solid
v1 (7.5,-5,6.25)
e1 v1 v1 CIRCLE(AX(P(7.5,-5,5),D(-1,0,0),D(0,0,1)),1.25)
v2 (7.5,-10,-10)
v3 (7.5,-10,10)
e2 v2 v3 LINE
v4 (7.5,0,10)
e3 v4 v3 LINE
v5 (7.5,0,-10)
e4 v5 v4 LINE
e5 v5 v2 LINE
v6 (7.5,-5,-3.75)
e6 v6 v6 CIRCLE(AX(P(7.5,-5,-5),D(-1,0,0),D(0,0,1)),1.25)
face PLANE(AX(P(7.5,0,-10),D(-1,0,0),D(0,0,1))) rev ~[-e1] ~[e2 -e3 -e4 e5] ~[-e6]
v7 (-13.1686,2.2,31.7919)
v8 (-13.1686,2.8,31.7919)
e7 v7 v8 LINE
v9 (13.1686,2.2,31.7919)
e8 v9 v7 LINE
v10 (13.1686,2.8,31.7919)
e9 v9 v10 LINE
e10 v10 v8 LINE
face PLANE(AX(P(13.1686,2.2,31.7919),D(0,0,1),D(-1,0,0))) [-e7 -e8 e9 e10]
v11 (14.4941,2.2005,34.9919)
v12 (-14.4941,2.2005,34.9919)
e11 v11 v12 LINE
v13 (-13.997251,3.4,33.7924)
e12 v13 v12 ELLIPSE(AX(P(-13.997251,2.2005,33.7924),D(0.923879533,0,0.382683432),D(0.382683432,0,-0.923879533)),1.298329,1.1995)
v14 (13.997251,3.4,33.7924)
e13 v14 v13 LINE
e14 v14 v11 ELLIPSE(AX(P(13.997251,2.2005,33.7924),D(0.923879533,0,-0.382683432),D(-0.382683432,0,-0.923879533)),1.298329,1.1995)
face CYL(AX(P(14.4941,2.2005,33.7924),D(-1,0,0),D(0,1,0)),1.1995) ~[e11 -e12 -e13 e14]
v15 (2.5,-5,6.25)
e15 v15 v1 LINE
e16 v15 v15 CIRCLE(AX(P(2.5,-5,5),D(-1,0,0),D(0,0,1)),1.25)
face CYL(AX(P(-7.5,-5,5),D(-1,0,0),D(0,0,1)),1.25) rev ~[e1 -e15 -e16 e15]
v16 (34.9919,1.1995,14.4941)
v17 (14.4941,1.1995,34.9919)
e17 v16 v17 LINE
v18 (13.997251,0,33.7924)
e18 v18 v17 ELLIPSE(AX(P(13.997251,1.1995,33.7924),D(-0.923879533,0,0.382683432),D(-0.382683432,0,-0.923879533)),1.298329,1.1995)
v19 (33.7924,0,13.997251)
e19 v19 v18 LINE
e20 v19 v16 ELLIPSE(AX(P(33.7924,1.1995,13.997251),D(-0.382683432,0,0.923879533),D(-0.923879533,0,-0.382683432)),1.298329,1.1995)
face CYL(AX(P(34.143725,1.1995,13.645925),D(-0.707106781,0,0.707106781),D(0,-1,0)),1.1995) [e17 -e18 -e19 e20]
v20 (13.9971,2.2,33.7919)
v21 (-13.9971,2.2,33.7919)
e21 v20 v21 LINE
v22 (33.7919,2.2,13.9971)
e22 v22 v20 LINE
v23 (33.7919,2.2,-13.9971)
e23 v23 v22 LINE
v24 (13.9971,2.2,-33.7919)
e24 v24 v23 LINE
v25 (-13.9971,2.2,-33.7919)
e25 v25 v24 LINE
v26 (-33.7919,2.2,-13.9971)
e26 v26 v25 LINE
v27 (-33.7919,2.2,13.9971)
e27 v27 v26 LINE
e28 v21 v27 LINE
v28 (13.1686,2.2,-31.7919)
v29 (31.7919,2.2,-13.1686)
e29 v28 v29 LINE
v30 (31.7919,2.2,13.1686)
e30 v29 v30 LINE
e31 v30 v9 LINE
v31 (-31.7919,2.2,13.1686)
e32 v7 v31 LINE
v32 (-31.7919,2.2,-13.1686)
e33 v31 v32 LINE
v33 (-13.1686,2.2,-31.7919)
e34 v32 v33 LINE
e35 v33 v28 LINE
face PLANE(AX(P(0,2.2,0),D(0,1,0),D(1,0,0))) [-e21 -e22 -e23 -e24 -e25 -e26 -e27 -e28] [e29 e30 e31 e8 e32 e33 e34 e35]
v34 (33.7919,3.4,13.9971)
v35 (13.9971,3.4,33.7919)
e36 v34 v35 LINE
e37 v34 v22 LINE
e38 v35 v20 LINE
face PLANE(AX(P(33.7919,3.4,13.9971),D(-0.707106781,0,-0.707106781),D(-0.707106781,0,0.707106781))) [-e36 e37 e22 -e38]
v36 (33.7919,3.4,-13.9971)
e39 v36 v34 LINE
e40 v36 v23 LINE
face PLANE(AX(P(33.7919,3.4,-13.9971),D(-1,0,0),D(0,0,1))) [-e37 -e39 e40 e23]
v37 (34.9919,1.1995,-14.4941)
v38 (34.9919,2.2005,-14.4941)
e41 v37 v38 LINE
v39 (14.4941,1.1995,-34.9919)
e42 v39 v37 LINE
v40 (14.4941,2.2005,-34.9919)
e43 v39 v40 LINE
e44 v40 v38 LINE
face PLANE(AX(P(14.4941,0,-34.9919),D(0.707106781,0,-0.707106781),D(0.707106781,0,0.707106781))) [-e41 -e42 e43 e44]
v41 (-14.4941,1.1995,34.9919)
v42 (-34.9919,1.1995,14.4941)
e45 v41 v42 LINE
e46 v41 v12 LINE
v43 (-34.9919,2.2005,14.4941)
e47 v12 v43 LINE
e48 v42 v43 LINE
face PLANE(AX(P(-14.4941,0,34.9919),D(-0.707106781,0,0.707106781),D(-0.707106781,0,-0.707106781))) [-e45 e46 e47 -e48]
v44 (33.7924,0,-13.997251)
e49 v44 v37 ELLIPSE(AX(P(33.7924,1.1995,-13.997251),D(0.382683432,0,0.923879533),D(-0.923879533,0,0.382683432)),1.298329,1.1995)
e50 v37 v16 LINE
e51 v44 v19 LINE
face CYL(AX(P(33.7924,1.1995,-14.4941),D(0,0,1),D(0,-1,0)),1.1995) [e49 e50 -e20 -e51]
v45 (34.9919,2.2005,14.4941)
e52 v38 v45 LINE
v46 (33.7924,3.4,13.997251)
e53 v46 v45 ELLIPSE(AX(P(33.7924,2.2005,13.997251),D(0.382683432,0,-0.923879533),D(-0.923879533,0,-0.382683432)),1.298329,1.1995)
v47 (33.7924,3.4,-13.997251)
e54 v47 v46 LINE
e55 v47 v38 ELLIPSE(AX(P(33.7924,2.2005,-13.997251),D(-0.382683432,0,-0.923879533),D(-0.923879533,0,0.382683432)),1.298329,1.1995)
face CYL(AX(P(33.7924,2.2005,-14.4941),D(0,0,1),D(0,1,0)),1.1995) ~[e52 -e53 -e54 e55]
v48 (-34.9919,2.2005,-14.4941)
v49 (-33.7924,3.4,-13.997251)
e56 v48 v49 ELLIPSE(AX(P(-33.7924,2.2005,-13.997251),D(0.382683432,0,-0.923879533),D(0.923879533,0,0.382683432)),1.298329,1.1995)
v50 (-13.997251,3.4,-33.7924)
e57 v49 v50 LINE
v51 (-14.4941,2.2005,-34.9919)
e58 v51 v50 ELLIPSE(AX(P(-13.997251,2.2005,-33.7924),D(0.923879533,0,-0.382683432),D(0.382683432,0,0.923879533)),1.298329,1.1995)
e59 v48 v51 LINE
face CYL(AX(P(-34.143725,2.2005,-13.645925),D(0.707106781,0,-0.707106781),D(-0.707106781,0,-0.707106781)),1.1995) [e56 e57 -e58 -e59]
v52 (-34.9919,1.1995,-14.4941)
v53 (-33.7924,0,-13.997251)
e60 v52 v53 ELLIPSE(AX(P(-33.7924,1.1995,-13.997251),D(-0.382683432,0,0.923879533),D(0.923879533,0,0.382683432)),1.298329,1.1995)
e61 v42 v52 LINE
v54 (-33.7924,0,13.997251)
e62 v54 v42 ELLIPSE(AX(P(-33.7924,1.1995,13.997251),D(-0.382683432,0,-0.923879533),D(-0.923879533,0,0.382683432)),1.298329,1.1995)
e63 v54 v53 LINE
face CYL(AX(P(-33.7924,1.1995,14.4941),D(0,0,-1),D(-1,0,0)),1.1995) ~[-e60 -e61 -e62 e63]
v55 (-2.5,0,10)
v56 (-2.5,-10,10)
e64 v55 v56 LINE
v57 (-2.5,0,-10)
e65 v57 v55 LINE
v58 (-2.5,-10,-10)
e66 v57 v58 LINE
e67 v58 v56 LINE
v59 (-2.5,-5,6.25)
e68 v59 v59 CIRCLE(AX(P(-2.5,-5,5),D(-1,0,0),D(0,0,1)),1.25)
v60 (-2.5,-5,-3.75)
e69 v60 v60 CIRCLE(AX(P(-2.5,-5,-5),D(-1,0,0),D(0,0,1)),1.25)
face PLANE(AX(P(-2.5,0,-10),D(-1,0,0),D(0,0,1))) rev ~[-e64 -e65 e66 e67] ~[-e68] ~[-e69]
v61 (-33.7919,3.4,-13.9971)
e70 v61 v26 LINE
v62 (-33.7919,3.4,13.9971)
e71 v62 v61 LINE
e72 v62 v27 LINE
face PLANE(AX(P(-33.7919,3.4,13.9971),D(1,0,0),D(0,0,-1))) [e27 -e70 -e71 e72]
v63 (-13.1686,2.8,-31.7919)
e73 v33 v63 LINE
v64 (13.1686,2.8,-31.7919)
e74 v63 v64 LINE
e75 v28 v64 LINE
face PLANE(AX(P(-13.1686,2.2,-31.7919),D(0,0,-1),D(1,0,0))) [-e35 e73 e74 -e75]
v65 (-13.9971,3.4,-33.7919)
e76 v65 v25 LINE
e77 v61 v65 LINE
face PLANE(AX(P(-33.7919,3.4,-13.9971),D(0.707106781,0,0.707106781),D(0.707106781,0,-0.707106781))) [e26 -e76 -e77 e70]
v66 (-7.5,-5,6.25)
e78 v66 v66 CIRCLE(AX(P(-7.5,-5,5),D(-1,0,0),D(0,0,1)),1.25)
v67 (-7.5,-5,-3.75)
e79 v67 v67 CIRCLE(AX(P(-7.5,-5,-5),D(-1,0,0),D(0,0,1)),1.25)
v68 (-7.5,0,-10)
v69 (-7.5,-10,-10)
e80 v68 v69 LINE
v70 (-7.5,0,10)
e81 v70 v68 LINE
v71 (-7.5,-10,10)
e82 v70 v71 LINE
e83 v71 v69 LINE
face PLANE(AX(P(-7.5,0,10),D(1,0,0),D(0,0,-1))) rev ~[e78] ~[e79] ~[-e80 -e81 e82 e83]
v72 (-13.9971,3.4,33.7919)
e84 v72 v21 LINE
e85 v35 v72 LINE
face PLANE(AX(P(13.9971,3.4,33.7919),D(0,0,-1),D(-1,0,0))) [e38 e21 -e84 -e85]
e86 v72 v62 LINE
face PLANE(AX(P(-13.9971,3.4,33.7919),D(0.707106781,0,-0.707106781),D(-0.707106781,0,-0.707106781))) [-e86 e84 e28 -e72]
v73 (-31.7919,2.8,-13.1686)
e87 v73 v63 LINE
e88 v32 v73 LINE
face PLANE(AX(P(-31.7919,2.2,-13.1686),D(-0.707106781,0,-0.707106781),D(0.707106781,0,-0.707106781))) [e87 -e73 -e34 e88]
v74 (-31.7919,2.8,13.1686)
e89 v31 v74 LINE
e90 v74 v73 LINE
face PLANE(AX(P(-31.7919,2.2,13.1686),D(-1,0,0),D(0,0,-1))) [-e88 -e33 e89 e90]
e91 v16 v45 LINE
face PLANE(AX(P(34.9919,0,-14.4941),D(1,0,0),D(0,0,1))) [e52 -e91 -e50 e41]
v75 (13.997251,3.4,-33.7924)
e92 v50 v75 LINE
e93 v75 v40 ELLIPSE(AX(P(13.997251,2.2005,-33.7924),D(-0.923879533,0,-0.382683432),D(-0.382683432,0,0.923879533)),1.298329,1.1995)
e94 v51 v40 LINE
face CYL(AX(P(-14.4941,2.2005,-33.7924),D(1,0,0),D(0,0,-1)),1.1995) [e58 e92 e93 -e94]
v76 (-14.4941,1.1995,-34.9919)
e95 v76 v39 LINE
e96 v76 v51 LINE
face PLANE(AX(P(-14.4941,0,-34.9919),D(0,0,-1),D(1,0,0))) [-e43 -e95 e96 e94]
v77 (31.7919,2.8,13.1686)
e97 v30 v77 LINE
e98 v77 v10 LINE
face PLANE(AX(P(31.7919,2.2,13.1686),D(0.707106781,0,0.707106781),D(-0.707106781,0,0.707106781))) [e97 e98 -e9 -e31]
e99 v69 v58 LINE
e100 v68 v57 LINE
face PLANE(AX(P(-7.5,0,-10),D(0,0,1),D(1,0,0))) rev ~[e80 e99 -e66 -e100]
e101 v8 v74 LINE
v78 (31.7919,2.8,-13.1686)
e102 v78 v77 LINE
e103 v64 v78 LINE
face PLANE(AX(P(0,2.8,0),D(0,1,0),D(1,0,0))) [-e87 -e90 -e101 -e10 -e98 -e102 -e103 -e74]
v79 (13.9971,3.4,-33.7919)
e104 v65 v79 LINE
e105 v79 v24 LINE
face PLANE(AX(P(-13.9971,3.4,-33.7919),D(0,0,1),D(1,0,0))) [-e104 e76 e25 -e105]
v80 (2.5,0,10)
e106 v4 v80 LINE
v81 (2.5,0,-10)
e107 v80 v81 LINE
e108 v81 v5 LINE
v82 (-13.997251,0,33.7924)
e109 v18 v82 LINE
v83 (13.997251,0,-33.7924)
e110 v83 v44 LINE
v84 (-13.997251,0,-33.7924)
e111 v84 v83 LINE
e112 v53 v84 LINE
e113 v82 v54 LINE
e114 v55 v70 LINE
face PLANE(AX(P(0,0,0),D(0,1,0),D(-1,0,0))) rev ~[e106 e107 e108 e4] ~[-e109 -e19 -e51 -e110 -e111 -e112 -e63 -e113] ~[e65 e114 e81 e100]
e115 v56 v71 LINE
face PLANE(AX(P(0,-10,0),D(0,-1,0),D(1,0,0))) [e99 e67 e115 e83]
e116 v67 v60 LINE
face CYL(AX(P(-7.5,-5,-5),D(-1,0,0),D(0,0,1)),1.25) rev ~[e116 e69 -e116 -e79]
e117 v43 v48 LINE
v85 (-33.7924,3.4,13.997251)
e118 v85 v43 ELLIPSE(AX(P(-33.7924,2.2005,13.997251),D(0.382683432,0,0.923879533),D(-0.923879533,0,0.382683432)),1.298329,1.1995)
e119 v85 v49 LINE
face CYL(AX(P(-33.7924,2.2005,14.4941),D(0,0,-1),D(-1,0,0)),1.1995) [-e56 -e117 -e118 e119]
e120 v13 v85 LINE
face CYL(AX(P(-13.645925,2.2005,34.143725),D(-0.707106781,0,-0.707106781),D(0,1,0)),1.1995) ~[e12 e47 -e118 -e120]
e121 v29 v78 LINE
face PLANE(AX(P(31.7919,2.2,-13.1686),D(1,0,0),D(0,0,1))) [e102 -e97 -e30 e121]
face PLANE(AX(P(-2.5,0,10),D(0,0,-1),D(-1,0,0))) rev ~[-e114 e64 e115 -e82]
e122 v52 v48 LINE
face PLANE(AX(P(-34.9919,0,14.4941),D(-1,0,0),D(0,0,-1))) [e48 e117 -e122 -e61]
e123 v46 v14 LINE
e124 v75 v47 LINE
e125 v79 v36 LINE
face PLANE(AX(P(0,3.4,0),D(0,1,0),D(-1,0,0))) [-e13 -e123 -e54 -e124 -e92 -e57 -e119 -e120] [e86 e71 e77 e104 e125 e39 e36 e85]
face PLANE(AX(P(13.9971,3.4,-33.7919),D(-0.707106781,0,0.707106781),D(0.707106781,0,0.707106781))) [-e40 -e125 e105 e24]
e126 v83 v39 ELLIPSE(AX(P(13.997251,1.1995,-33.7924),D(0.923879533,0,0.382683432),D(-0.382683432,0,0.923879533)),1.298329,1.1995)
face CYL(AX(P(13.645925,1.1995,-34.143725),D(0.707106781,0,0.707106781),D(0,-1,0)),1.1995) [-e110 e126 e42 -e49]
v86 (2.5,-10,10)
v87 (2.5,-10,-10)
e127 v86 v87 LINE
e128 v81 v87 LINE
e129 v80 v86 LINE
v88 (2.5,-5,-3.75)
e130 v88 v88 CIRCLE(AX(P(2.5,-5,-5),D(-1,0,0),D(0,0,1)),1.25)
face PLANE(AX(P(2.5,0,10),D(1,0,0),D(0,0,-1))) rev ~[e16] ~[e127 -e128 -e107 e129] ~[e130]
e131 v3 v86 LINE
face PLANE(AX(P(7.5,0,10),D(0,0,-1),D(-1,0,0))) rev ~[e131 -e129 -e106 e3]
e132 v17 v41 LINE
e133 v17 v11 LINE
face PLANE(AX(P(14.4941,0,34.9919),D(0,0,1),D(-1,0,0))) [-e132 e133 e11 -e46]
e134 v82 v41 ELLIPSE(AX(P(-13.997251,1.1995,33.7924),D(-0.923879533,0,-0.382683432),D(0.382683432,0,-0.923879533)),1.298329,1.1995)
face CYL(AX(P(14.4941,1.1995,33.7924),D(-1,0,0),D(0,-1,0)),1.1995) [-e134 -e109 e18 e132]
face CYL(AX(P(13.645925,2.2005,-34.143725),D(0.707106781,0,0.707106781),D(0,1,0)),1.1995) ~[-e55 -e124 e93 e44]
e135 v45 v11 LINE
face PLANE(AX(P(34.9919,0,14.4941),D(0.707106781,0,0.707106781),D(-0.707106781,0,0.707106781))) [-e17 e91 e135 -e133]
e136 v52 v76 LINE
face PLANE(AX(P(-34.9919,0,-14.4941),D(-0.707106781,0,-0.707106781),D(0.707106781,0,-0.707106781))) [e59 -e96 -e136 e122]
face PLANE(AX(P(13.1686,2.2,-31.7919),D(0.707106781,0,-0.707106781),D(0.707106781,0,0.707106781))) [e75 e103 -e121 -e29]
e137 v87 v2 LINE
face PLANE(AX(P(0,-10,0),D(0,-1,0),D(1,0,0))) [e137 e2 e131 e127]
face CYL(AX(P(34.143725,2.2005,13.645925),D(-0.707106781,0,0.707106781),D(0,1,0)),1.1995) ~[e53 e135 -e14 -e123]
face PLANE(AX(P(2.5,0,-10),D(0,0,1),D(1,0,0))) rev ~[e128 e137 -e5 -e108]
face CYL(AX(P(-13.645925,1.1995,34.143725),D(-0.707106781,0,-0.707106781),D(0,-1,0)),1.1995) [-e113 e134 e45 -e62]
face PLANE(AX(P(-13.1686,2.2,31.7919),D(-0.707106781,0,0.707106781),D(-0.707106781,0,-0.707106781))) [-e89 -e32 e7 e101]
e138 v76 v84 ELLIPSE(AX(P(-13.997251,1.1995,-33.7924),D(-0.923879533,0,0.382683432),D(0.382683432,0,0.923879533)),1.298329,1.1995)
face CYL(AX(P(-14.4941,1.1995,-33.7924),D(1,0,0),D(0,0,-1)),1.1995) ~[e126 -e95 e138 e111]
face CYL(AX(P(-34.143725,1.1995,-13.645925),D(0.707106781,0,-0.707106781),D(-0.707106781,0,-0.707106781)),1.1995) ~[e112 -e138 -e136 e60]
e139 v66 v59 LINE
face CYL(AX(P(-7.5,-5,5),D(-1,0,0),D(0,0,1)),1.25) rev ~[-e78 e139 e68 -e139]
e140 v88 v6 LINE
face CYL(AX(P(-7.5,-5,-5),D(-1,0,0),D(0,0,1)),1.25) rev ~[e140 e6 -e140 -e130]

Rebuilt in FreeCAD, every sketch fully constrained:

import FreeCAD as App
import Part
import Sketcher
from FreeCAD import Vector


def edges_at(feature, points):
    """Names of the edges that pass closest to the given points."""
    edges = feature.Shape.Edges
    near = lambda p: min(range(len(edges)), key=lambda i: edges[i].distToShape(Part.Vertex(*p))[0])
    return sorted({f"Edge{near(p) + 1}" for p in points})

doc = App.newDocument("Part")
body = doc.addObject("PartDesign::Body", "Body")

# Sketch on XZ plane
sketch1 = body.newObject("Sketcher::SketchObject", "Sketch")
sketch1.AttachmentSupport = (doc.getObject("XZ_Plane"), [""])
sketch1.MapMode = "FlatFace"
sketch1.addGeometry([
    Part.LineSegment(Vector(-14, -35, 0), Vector(-35, -14, 0)),  # 0
    Part.LineSegment(Vector(-35, -14, 0), Vector(-35, 14, 0)),  # 1
    Part.LineSegment(Vector(-35, 14, 0), Vector(-14, 35, 0)),  # 2
    Part.LineSegment(Vector(-14, 35, 0), Vector(14, 35, 0)),  # 3
    Part.LineSegment(Vector(14, 35, 0), Vector(35, 14, 0)),  # 4
    Part.LineSegment(Vector(35, 14, 0), Vector(35, -14, 0)),  # 5
    Part.LineSegment(Vector(35, -14, 0), Vector(14, -35, 0)),  # 6
    Part.LineSegment(Vector(14, -35, 0), Vector(-14, -35, 0)),  # 7
], False)
sketch1.addConstraint([
    Sketcher.Constraint("Coincident", 0, 2, 1, 1),
    Sketcher.Constraint("Coincident", 1, 2, 2, 1),
    Sketcher.Constraint("Coincident", 2, 2, 3, 1),
    Sketcher.Constraint("Coincident", 3, 2, 4, 1),
    Sketcher.Constraint("Coincident", 4, 2, 5, 1),
    Sketcher.Constraint("Coincident", 5, 2, 6, 1),
    Sketcher.Constraint("Coincident", 6, 2, 7, 1),
    Sketcher.Constraint("Coincident", 7, 2, 0, 1),
    Sketcher.Constraint("Vertical", 1),
    Sketcher.Constraint("Horizontal", 3),
    Sketcher.Constraint("Vertical", 5),
    Sketcher.Constraint("Horizontal", 7),
    Sketcher.Constraint("Symmetric", 0, 2, 4, 2, -1, 1),
    Sketcher.Constraint("Symmetric", 2, 2, 6, 2, -1, 1),
    Sketcher.Constraint("Perpendicular", 0, 2),
    Sketcher.Constraint("Perpendicular", 2, 4),
    Sketcher.Constraint("Perpendicular", 4, 6),
    Sketcher.Constraint("Horizontal", 1, 2, 4, 2),
    Sketcher.Constraint("Vertical", 3, 2, 6, 2),
    Sketcher.Constraint("Equal", 7, 1),
    Sketcher.Constraint("DistanceX", 3, 1, 3, 2, 28.9882),
    Sketcher.Constraint("DistanceX", 0, 2, -1, 1, 34.992),
])
pad1 = body.newObject("PartDesign::Pad", "Pad")
pad1.Profile = sketch1
pad1.Length = 3.4
pad1.Reversed = True

# Sketch on XZ plane
sketch2 = body.newObject("Sketcher::SketchObject", "Sketch001")
sketch2.AttachmentSupport = (doc.getObject("XZ_Plane"), [""])
sketch2.MapMode = "FlatFace"
sketch2.AttachmentOffset = App.Placement(Vector(0, 0, -3.4), App.Rotation())
sketch2.addGeometry([
    Part.LineSegment(Vector(14, -34, 0), Vector(-14, -34, 0)),  # 0
    Part.LineSegment(Vector(-14, -34, 0), Vector(-34, -14, 0)),  # 1
    Part.LineSegment(Vector(-34, -14, 0), Vector(-34, 14, 0)),  # 2
    Part.LineSegment(Vector(-34, 14, 0), Vector(-14, 34, 0)),  # 3
    Part.LineSegment(Vector(-14, 34, 0), Vector(14, 34, 0)),  # 4
    Part.LineSegment(Vector(14, 34, 0), Vector(34, 14, 0)),  # 5
    Part.LineSegment(Vector(34, 14, 0), Vector(34, -14, 0)),  # 6
    Part.LineSegment(Vector(34, -14, 0), Vector(14, -34, 0)),  # 7
], False)
sketch2.addConstraint([
    Sketcher.Constraint("Coincident", 0, 2, 1, 1),
    Sketcher.Constraint("Coincident", 1, 2, 2, 1),
    Sketcher.Constraint("Coincident", 2, 2, 3, 1),
    Sketcher.Constraint("Coincident", 3, 2, 4, 1),
    Sketcher.Constraint("Coincident", 4, 2, 5, 1),
    Sketcher.Constraint("Coincident", 5, 2, 6, 1),
    Sketcher.Constraint("Coincident", 6, 2, 7, 1),
    Sketcher.Constraint("Coincident", 7, 2, 0, 1),
    Sketcher.Constraint("Horizontal", 0),
    Sketcher.Constraint("Vertical", 2),
    Sketcher.Constraint("Horizontal", 4),
    Sketcher.Constraint("Vertical", 6),
    Sketcher.Constraint("Symmetric", 0, 2, 4, 2, -1, 1),
    Sketcher.Constraint("Symmetric", 1, 2, 5, 2, -1, 1),
    Sketcher.Constraint("Perpendicular", 1, 3),
    Sketcher.Constraint("Perpendicular", 5, 7),
    Sketcher.Constraint("Horizontal", 2, 2, 5, 2),
    Sketcher.Constraint("Horizontal", 1, 2, 6, 2),
    Sketcher.Constraint("Vertical", 0, 2, 3, 2),
    Sketcher.Constraint("Equal", 4, 2),
    Sketcher.Constraint("Distance", 1, 27.994),
    Sketcher.Constraint("DistanceX", 0, 2, 0, 1, 27.9942),
])
pocket1 = body.newObject("PartDesign::Pocket", "Pocket")
pocket1.Profile = sketch2
pocket1.Length = 1.2
pocket1.Reversed = True

# Sketch on XZ plane
sketch3 = body.newObject("Sketcher::SketchObject", "Sketch002")
sketch3.AttachmentSupport = (doc.getObject("XZ_Plane"), [""])
sketch3.MapMode = "FlatFace"
sketch3.addGeometry([
    Part.LineSegment(Vector(8, -10, 0), Vector(8, 10, 0)),  # 0
    Part.LineSegment(Vector(8, 10, 0), Vector(2, 10, 0)),  # 1
    Part.LineSegment(Vector(2, 10, 0), Vector(2, -10, 0)),  # 2
    Part.LineSegment(Vector(2, -10, 0), Vector(8, -10, 0)),  # 3
    Part.LineSegment(Vector(-2, -10, 0), Vector(-2, 10, 0)),  # 4
    Part.LineSegment(Vector(-2, 10, 0), Vector(-8, 10, 0)),  # 5
    Part.LineSegment(Vector(-8, 10, 0), Vector(-8, -10, 0)),  # 6
    Part.LineSegment(Vector(-8, -10, 0), Vector(-2, -10, 0)),  # 7
], False)
sketch3.addConstraint([
    Sketcher.Constraint("Coincident", 0, 2, 1, 1),
    Sketcher.Constraint("Coincident", 1, 2, 2, 1),
    Sketcher.Constraint("Coincident", 2, 2, 3, 1),
    Sketcher.Constraint("Coincident", 3, 2, 0, 1),
    Sketcher.Constraint("Coincident", 4, 2, 5, 1),
    Sketcher.Constraint("Coincident", 5, 2, 6, 1),
    Sketcher.Constraint("Coincident", 6, 2, 7, 1),
    Sketcher.Constraint("Coincident", 7, 2, 4, 1),
    Sketcher.Constraint("Vertical", 0),
    Sketcher.Constraint("Horizontal", 1),
    Sketcher.Constraint("Vertical", 2),
    Sketcher.Constraint("Horizontal", 3),
    Sketcher.Constraint("Vertical", 4),
    Sketcher.Constraint("Horizontal", 5),
    Sketcher.Constraint("Vertical", 6),
    Sketcher.Constraint("Horizontal", 7),
    Sketcher.Constraint("Symmetric", 2, 2, 4, 2, -1, 1),
    Sketcher.Constraint("Symmetric", 0, 2, 6, 2, -1, 1),
    Sketcher.Constraint("Horizontal", 1, 2, 4, 2),
    Sketcher.Constraint("DistanceX", 1, 2, 1, 1, 5.0),
    Sketcher.Constraint("DistanceY", 0, 1, 0, 2, 20.0),
    Sketcher.Constraint("DistanceX", 4, 2, 1, 2, 5.0),
])
pad2 = body.newObject("PartDesign::Pad", "Pad001")
pad2.Profile = sketch3
pad2.Length = 10

# Sketch on YZ plane
sketch4 = body.newObject("Sketcher::SketchObject", "Sketch003")
sketch4.AttachmentSupport = (doc.getObject("YZ_Plane"), [""])
sketch4.MapMode = "FlatFace"
sketch4.AttachmentOffset = App.Placement(Vector(0, 0, -7.5), App.Rotation())
sketch4.addGeometry([
    Part.Circle(Vector(-5, 5, 0), Vector(0, 0, 1), 1.2),
    Part.Circle(Vector(-5, -5, 0), Vector(0, 0, 1), 1.2),
], False)
sketch4.addConstraint([
    Sketcher.Constraint("Equal", 0, 1),
    Sketcher.Constraint("Symmetric", 0, 3, 1, 3, -1),
    Sketcher.Constraint("Diameter", 0, 2.5),
    Sketcher.Constraint("DistanceX", 0, 3, -1, 1, 5.0),
    Sketcher.Constraint("DistanceY", -1, 1, 0, 3, 5.0),
])
pocket2 = body.newObject("PartDesign::Pocket", "Pocket001")
pocket2.Profile = sketch4
pocket2.Length = 20
pocket2.Reversed = True

# Sketch on XZ plane
sketch5 = body.newObject("Sketcher::SketchObject", "Sketch004")
sketch5.AttachmentSupport = (doc.getObject("XZ_Plane"), [""])
sketch5.MapMode = "FlatFace"
sketch5.AttachmentOffset = App.Placement(Vector(0, 0, -2.2), App.Rotation())
sketch5.addGeometry([
    Part.LineSegment(Vector(13, -32, 0), Vector(-13, -32, 0)),  # 0
    Part.LineSegment(Vector(-13, -32, 0), Vector(-32, -13, 0)),  # 1
    Part.LineSegment(Vector(-32, -13, 0), Vector(-32, 13, 0)),  # 2
    Part.LineSegment(Vector(-32, 13, 0), Vector(-13, 32, 0)),  # 3
    Part.LineSegment(Vector(-13, 32, 0), Vector(13, 32, 0)),  # 4
    Part.LineSegment(Vector(13, 32, 0), Vector(32, 13, 0)),  # 5
    Part.LineSegment(Vector(32, 13, 0), Vector(32, -13, 0)),  # 6
    Part.LineSegment(Vector(32, -13, 0), Vector(13, -32, 0)),  # 7
], False)
sketch5.addConstraint([
    Sketcher.Constraint("Coincident", 0, 2, 1, 1),
    Sketcher.Constraint("Coincident", 1, 2, 2, 1),
    Sketcher.Constraint("Coincident", 2, 2, 3, 1),
    Sketcher.Constraint("Coincident", 3, 2, 4, 1),
    Sketcher.Constraint("Coincident", 4, 2, 5, 1),
    Sketcher.Constraint("Coincident", 5, 2, 6, 1),
    Sketcher.Constraint("Coincident", 6, 2, 7, 1),
    Sketcher.Constraint("Coincident", 7, 2, 0, 1),
    Sketcher.Constraint("Horizontal", 0),
    Sketcher.Constraint("Vertical", 2),
    Sketcher.Constraint("Horizontal", 4),
    Sketcher.Constraint("Vertical", 6),
    Sketcher.Constraint("Symmetric", 0, 2, 4, 2, -1, 1),
    Sketcher.Constraint("Symmetric", 1, 2, 5, 2, -1, 1),
    Sketcher.Constraint("Perpendicular", 1, 3),
    Sketcher.Constraint("Perpendicular", 5, 7),
    Sketcher.Constraint("Horizontal", 2, 2, 5, 2),
    Sketcher.Constraint("Horizontal", 1, 2, 6, 2),
    Sketcher.Constraint("Vertical", 0, 2, 3, 2),
    Sketcher.Constraint("Equal", 4, 2),
    Sketcher.Constraint("DistanceX", 0, 2, 0, 1, 26.3372),
    Sketcher.Constraint("DistanceY", 0, 2, -1, 1, 31.792),
])
pad3 = body.newObject("PartDesign::Pad", "Pad002")
pad3.Profile = sketch5
pad3.Length = 0.6
pad3.Reversed = True
doc.recompute()

fillet = body.newObject("PartDesign::Fillet", "Fillet")
fillet.Base = (pad3, edges_at(pad3, [
    (-24.743, 3.4, 24.743),
    (0, 3.4, 34.992),
    (24.743, 3.4, 24.743),
    (34.992, 3.4, 0),
    (24.743, 3.4, -24.743),
    (0, 3.4, -34.992),
    (-24.743, 3.4, -24.743),
    (-34.992, 3.4, 0),
    (-24.743, 0, 24.743),
    (0, 0, 34.992),
    (24.743, 0, 24.743),
    (34.992, 0, 0),
    (24.743, 0, -24.743),
    (0, 0, -34.992),
    (-24.743, 0, -24.743),
    (-34.992, 0, 0),
]))
fillet.Radius = 1.2

doc.recompute()
